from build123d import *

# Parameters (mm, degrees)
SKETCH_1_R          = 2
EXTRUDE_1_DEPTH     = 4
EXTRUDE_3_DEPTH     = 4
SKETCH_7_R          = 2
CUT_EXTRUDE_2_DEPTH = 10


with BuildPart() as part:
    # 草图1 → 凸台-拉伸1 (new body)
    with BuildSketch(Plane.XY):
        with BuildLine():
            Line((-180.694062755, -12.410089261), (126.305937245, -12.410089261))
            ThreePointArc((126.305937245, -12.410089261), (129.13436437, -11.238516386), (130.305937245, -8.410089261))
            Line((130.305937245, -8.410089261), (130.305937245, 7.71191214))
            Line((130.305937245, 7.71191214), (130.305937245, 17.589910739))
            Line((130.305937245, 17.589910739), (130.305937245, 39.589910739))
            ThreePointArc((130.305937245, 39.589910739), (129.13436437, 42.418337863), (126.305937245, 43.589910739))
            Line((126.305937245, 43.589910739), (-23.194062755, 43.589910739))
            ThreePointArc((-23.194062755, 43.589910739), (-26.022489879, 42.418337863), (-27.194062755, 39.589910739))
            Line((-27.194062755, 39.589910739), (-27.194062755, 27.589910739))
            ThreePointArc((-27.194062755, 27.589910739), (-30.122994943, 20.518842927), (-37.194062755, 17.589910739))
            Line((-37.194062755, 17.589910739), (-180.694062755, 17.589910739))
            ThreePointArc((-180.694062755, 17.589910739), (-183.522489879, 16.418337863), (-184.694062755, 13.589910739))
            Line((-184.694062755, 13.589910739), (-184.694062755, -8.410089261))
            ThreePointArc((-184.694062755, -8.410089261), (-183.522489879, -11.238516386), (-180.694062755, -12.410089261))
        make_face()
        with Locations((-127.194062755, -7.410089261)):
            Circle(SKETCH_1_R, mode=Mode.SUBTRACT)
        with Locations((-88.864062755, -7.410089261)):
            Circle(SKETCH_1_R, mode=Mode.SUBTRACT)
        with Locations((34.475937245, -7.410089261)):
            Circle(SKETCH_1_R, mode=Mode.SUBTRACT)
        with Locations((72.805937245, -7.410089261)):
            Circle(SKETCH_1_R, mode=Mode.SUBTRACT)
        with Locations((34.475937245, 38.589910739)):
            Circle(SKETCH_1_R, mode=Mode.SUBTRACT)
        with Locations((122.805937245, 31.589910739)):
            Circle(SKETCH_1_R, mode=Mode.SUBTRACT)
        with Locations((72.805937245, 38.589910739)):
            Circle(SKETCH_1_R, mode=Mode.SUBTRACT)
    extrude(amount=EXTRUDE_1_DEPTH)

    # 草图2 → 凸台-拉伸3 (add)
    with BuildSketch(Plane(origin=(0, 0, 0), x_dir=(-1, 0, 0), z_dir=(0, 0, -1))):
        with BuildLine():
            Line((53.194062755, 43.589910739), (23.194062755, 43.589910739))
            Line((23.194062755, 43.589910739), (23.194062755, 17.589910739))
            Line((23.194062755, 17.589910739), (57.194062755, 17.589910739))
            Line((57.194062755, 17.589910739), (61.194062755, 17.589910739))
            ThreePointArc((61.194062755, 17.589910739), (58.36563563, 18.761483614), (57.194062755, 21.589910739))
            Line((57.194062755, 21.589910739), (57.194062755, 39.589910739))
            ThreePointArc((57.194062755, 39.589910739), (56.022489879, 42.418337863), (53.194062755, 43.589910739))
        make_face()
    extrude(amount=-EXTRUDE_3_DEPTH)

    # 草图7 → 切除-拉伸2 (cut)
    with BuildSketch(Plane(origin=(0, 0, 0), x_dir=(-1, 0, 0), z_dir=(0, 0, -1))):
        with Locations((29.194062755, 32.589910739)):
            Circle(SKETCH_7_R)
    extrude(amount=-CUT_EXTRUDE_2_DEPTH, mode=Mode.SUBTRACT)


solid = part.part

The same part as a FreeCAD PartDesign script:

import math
import FreeCAD as App
import Part
import Sketcher
from FreeCAD import Vector
Q = App.Units.Quantity

doc = App.newDocument("Part")
body = doc.addObject("PartDesign::Body", "Body")

sketch1 = doc.addObject("Sketcher::SketchObject", "Sketch")
body.addObject(sketch1)
sketch1.AttachmentSupport = (doc.XY_Plane, [""])
sketch1.MapMode = "FlatFace"
sketch1.addGeometry(Part.LineSegment(Vector(-180.7, -12.4, 0), Vector(126.3, -12.4, 0)), False)
sketch1.addGeometry(Part.ArcOfCircle(Part.Circle(Vector(126.3, -8.4, 0), Vector(0, 0, 1), 4), math.radians(-90), math.radians(0)), False)
sketch1.addGeometry(Part.LineSegment(Vector(130.3, -8.4, 0), Vector(130.3, 39.6, 0)), False)
sketch1.addGeometry(Part.ArcOfCircle(Part.Circle(Vector(126.3, 39.6, 0), Vector(0, 0, 1), 4), math.radians(0), math.radians(90)), False)
sketch1.addGeometry(Part.LineSegment(Vector(126.3, 43.6, 0), Vector(-23.2, 43.6, 0)), False)
sketch1.addGeometry(Part.ArcOfCircle(Part.Circle(Vector(-23.2, 39.6, 0), Vector(0, 0, 1), 4), math.radians(90), math.radians(180)), False)
sketch1.addGeometry(Part.LineSegment(Vector(-27.2, 39.6, 0), Vector(-27.2, 27.6, 0)), False)
sketch1.addGeometry(Part.ArcOfCircle(Part.Circle(Vector(-37.2, 27.6, 0), Vector(0, 0, 1), 10), math.radians(-90), math.radians(0)), False)
sketch1.addGeometry(Part.LineSegment(Vector(-37.2, 17.6, 0), Vector(-180.7, 17.6, 0)), False)
sketch1.addGeometry(Part.ArcOfCircle(Part.Circle(Vector(-180.7, 13.6, 0), Vector(0, 0, 1), 4), math.radians(90), math.radians(180)), False)
sketch1.addGeometry(Part.LineSegment(Vector(-184.7, 13.6, 0), Vector(-184.7, -8.4, 0)), False)
sketch1.addGeometry(Part.ArcOfCircle(Part.Circle(Vector(-180.7, -8.4, 0), Vector(0, 0, 1), 4), math.radians(-180), math.radians(-90)), False)
sketch1.addGeometry(Part.Circle(Vector(-127.2, -7.4, 0), Vector(0, 0, 1), 2), False)
sketch1.addGeometry(Part.Circle(Vector(-88.9, -7.4, 0), Vector(0, 0, 1), 2), False)
sketch1.addGeometry(Part.Circle(Vector(34.5, -7.4, 0), Vector(0, 0, 1), 2), False)
sketch1.addGeometry(Part.Circle(Vector(72.8, -7.4, 0), Vector(0, 0, 1), 2), False)
sketch1.addGeometry(Part.Circle(Vector(34.5, 38.6, 0), Vector(0, 0, 1), 2), False)
sketch1.addGeometry(Part.Circle(Vector(122.8, 31.6, 0), Vector(0, 0, 1), 2), False)
sketch1.addGeometry(Part.Circle(Vector(72.8, 38.6, 0), Vector(0, 0, 1), 2), False)
sketch1.addConstraint(Sketcher.Constraint("Tangent", 0, 2, 1, 1))
sketch1.addConstraint(Sketcher.Constraint("Tangent", 1, 2, 2, 1))
sketch1.addConstraint(Sketcher.Constraint("Tangent", 2, 2, 3, 1))
sketch1.addConstraint(Sketcher.Constraint("Tangent", 3, 2, 4, 1))
sketch1.addConstraint(Sketcher.Constraint("Tangent", 4, 2, 5, 1))
sketch1.addConstraint(Sketcher.Constraint("Tangent", 5, 2, 6, 1))
sketch1.addConstraint(Sketcher.Constraint("Tangent", 6, 2, 7, 2))
sketch1.addConstraint(Sketcher.Constraint("Tangent", 7, 1, 8, 1))
sketch1.addConstraint(Sketcher.Constraint("Tangent", 8, 2, 9, 1))
sketch1.addConstraint(Sketcher.Constraint("Tangent", 9, 2, 10, 1))
sketch1.addConstraint(Sketcher.Constraint("Tangent", 10, 2, 11, 1))
sketch1.addConstraint(Sketcher.Constraint("Tangent", 11, 2, 0, 1))
sketch1.addConstraint(Sketcher.Constraint("Horizontal", 0))
sketch1.addConstraint(Sketcher.Constraint("Vertical", 2))
sketch1.addConstraint(Sketcher.Constraint("Horizontal", 4))
sketch1.addConstraint(Sketcher.Constraint("Vertical", 6))
sketch1.addConstraint(Sketcher.Constraint("Horizontal", 8))
sketch1.addConstraint(Sketcher.Constraint("Vertical", 10))
sketch1.addConstraint(Sketcher.Constraint("Equal", 1, 3))
sketch1.addConstraint(Sketcher.Constraint("Equal", 3, 5))
sketch1.addConstraint(Sketcher.Constraint("Equal", 5, 9))
sketch1.addConstraint(Sketcher.Constraint("Equal", 9, 11))
sketch1.addConstraint(Sketcher.Constraint("Equal", 12, 13))
sketch1.addConstraint(Sketcher.Constraint("Equal", 13, 14))
sketch1.addConstraint(Sketcher.Constraint("Equal", 14, 15))
sketch1.addConstraint(Sketcher.Constraint("Equal", 15, 16))
sketch1.addConstraint(Sketcher.Constraint("Equal", 16, 17))
sketch1.addConstraint(Sketcher.Constraint("Equal", 17, 18))
sketch1.addConstraint(Sketcher.Constraint("Horizontal", 12, 3, 13, 3))
sketch1.addConstraint(Sketcher.Constraint("Horizontal", 13, 3, 14, 3))
sketch1.addConstraint(Sketcher.Constraint("Horizontal", 14, 3, 15, 3))
sketch1.addConstraint(Sketcher.Constraint("Horizontal", 16, 3, 18, 3))
sketch1.addConstraint(Sketcher.Constraint("Vertical", 14, 3, 16, 3))
sketch1.addConstraint(Sketcher.Constraint("Vertical", 15, 3, 18, 3))
sketch1.addConstraint(Sketcher.Constraint("Diameter", 12, Q("4 mm")))
sketch1.addConstraint(Sketcher.Constraint("Radius", 1, Q("4 mm")))
sketch1.addConstraint(Sketcher.Constraint("Radius", 7, Q("10 mm")))
sketch1.addConstraint(Sketcher.Constraint("DistanceX", 0, 1, 0, 2, Q("307 mm")))
sketch1.addConstraint(Sketcher.Constraint("DistanceY", 2, 1, 2, 2, Q("48 mm")))
sketch1.addConstraint(Sketcher.Constraint("DistanceY", 6, 2, 6, 1, Q("12 mm")))
sketch1.addConstraint(Sketcher.Constraint("DistanceX", 4, 2, 4, 1, Q("149.5 mm")))
sketch1.addConstraint(Sketcher.Constraint("DistanceY", 11, 3, 12, 3, Q("1 mm")))
sketch1.addConstraint(Sketcher.Constraint("DistanceX", 12, 3, 7, 3, Q("90 mm")))
sketch1.addConstraint(Sketcher.Constraint("DistanceX", 5, 3, 15, 3, Q("96 mm")))
sketch1.addConstraint(Sketcher.Constraint("DistanceY", 14, 3, 16, 3, Q("46 mm")))
sketch1.addConstraint(Sketcher.Constraint("DistanceY", 17, 3, 3, 3, Q("8 mm")))
sketch1.addConstraint(Sketcher.Constraint("DistanceX", 15, 3, 17, 3, Q("50 mm")))
sketch1.addConstraint(Sketcher.Constraint("DistanceX", 12, 3, 13, 3, Q("38.33 mm")))
sketch1.addConstraint(Sketcher.Constraint("DistanceX", 5, 3, 14, 3, Q("57.67 mm")))
sketch1.addConstraint(Sketcher.Constraint("DistanceY", 1, 3, -1, 1, Q("8.410089 mm")))
sketch1.addConstraint(Sketcher.Constraint("DistanceX", -1, 1, 1, 3, Q("126.305937 mm")))
pad1 = doc.addObject("PartDesign::Pad", "Pad")
body.addObject(pad1)
pad1.Profile = sketch1
pad1.Length = 4

sketch2 = doc.addObject("Sketcher::SketchObject", "Sketch001")
body.addObject(sketch2)
sketch2.AttachmentSupport = (doc.XY_Plane, [""])
sketch2.MapMode = "FlatFace"
sketch2.addGeometry(Part.LineSegment(Vector(-53.2, 43.6, 0), Vector(-23.2, 43.6, 0)), False)
sketch2.addGeometry(Part.LineSegment(Vector(-23.2, 43.6, 0), Vector(-23.2, 17.6, 0)), False)
sketch2.addGeometry(Part.LineSegment(Vector(-23.2, 17.6, 0), Vector(-61.2, 17.6, 0)), False)
sketch2.addGeometry(Part.ArcOfCircle(Part.Circle(Vector(-61.2, 21.6, 0), Vector(0, 0, 1), 4), math.radians(-90), math.radians(0)), False)
sketch2.addGeometry(Part.LineSegment(Vector(-57.2, 21.6, 0), Vector(-57.2, 39.6, 0)), False)
sketch2.addGeometry(Part.ArcOfCircle(Part.Circle(Vector(-53.2, 39.6, 0), Vector(0, 0, 1), 4), math.radians(90), math.radians(180)), False)
sketch2.addConstraint(Sketcher.Constraint("Coincident", 0, 2, 1, 1))
sketch2.addConstraint(Sketcher.Constraint("Coincident", 1, 2, 2, 1))
sketch2.addConstraint(Sketcher.Constraint("Tangent", 2, 2, 3, 1))
sketch2.addConstraint(Sketcher.Constraint("Tangent", 3, 2, 4, 1))
sketch2.addConstraint(Sketcher.Constraint("Tangent", 4, 2, 5, 2))
sketch2.addConstraint(Sketcher.Constraint("Tangent", 5, 1, 0, 1))
sketch2.addConstraint(Sketcher.Constraint("Horizontal", 0))
sketch2.addConstraint(Sketcher.Constraint("Vertical", 1))
sketch2.addConstraint(Sketcher.Constraint("Horizontal", 2))
sketch2.addConstraint(Sketcher.Constraint("Vertical", 4))
sketch2.addConstraint(Sketcher.Constraint("Equal", 3, 5))
sketch2.addConstraint(Sketcher.Constraint("Radius", 3, Q("4 mm")))
sketch2.addConstraint(Sketcher.Constraint("DistanceX", 0, 1, 0, 2, Q("30 mm")))
sketch2.addConstraint(Sketcher.Constraint("DistanceY", 1, 2, 1, 1, Q("26 mm")))
sketch2.addConstraint(Sketcher.Constraint("DistanceY", -1, 1, 3, 3, Q("21.589911 mm")))
sketch2.addConstraint(Sketcher.Constraint("DistanceX", 3, 3, -1, 1, Q("61.194063 mm")))
pad2 = doc.addObject("PartDesign::Pad", "Pad001")
body.addObject(pad2)
pad2.Profile = sketch2
pad2.Length = 4

sketch3 = doc.addObject("Sketcher::SketchObject", "Sketch002")
body.addObject(sketch3)
sketch3.AttachmentSupport = (doc.XY_Plane, [""])
sketch3.MapMode = "FlatFace"
sketch3.addGeometry(Part.Circle(Vector(-29.2, 32.6, 0), Vector(0, 0, 1), 2), False)
sketch3.addConstraint(Sketcher.Constraint("Diameter", 0, Q("4 mm")))
sketch3.addConstraint(Sketcher.Constraint("DistanceY", -1, 1, 0, 3, Q("32.589911 mm")))
sketch3.addConstraint(Sketcher.Constraint("DistanceX", 0, 3, -1, 1, Q("29.194063 mm")))
pocket1 = doc.addObject("PartDesign::Pocket", "Pocket")
body.addObject(pocket1)
pocket1.Profile = sketch3
pocket1.Length = 10
pocket1.Reversed = True

doc.recompute()
